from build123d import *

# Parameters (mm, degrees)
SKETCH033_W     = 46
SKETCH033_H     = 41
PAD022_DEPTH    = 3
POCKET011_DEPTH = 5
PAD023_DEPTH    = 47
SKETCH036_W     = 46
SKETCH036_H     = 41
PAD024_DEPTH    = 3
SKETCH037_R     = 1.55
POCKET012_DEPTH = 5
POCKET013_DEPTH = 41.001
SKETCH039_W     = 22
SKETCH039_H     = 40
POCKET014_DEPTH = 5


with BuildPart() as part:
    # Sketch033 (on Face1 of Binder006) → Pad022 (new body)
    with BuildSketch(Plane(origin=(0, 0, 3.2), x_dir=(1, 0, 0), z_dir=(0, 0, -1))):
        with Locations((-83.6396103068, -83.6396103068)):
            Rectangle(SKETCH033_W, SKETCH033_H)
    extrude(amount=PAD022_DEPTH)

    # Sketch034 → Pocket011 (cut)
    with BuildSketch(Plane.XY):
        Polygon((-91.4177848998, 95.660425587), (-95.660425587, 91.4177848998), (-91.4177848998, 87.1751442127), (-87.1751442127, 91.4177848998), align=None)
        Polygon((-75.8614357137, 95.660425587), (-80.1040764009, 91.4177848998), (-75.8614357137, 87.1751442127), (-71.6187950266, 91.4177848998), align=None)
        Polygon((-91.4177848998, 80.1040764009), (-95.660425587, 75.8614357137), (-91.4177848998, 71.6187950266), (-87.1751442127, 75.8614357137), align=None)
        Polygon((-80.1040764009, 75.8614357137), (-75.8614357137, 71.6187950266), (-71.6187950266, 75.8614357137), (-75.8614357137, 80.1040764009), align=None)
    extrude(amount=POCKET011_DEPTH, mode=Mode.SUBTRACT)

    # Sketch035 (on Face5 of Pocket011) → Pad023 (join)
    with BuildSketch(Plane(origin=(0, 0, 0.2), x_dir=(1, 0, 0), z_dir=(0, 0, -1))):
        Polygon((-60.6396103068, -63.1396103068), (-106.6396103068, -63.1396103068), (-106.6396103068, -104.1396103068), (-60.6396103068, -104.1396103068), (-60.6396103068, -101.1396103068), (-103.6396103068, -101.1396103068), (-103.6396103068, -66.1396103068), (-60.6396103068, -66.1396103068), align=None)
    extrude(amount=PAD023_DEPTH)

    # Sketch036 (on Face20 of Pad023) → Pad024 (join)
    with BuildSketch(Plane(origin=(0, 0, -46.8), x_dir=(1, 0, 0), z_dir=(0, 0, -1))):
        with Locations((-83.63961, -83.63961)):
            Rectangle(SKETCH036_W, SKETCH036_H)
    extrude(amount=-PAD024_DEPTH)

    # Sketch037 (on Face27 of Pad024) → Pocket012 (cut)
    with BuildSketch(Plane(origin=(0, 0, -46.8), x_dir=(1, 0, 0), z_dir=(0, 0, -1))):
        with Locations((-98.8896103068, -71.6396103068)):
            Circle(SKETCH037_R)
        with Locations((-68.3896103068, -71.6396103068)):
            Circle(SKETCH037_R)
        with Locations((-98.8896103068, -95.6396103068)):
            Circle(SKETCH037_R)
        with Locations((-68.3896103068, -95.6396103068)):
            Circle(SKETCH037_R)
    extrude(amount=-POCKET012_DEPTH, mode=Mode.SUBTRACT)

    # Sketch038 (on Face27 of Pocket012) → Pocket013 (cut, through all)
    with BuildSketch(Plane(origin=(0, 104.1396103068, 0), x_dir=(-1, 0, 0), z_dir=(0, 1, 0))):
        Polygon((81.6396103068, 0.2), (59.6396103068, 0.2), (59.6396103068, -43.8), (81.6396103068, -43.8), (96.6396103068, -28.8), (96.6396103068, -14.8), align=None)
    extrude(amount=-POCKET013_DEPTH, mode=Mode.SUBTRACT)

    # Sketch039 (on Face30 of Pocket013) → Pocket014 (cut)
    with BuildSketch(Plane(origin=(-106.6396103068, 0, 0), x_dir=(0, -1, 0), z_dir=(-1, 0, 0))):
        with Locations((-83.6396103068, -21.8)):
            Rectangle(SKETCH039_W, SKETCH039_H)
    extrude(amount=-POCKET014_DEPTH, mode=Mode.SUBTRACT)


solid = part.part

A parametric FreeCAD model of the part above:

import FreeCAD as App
import Part
import Sketcher

V = App.Vector
Q = App.Units.Quantity

doc = App.newDocument("Part")
params = doc.addObject("Spreadsheet::Sheet", "Params")
for row, (alias, value) in enumerate([
    ("sketch1_width", "46 mm"),
    ("sketch1_height", "41 mm"),
    ("pad1_length", "3 mm"),
    ("sketch2_length", "6 mm"),
    ("pocket1_length", "5 mm"),
    ("sketch3_width", "46 mm"),
    ("sketch3_width2", "43 mm"),
    ("sketch3_height", "41 mm"),
    ("sketch3_height2", "3 mm"),
    ("pad2_length", "47 mm"),
    ("sketch4_width", "46 mm"),
    ("sketch4_height", "41 mm"),
    ("pad3_length", "3 mm"),
    ("sketch5_diameter", "3.1 mm"),
    ("pocket2_length", "5 mm"),
    ("sketch6_width", "22 mm"),
    ("sketch6_height", "44 mm"),
    ("sketch6_height2", "14 mm"),
    ("sketch7_width", "22 mm"),
    ("sketch7_height", "40 mm"),
    ("pocket4_length", "5 mm"),
], start=1):
    params.set(f"A{row}", alias)
    params.set(f"B{row}", "=" + value)
    params.setAlias(f"B{row}", alias)

body = doc.addObject("PartDesign::Body", "Body")

sketch1 = doc.addObject("Sketcher::SketchObject", "Sketch")
body.addObject(sketch1)
sketch1.AttachmentSupport = (doc.XY_Plane, [""])
sketch1.MapMode = "FlatFace"
sketch1.AttachmentOffset = App.Placement(V(0, 0, 3.2), App.Rotation())
sketch1.addGeometry([
    Part.LineSegment(V(-107, 63, 0), V(-107, 104, 0)),
    Part.LineSegment(V(-107, 104, 0), V(-61, 104, 0)),
    Part.LineSegment(V(-61, 104, 0), V(-61, 63, 0)),
    Part.LineSegment(V(-61, 63, 0), V(-107, 63, 0)),
], False)
sketch1.addConstraint([
    Sketcher.Constraint("Coincident", 0, 2, 1, 1),
    Sketcher.Constraint("Coincident", 1, 2, 2, 1),
    Sketcher.Constraint("Coincident", 2, 2, 3, 1),
    Sketcher.Constraint("Coincident", 3, 2, 0, 1),
    Sketcher.Constraint("Vertical", 0),
    Sketcher.Constraint("Horizontal", 1),
    Sketcher.Constraint("Vertical", 2),
    Sketcher.Constraint("Horizontal", 3),
    Sketcher.Constraint("DistanceX", 1, 1, 1, 2, Q("46 mm")),
    Sketcher.Constraint("DistanceY", 0, 1, 0, 2, Q("41 mm")),
    Sketcher.Constraint("DistanceX", 0, 2, -1, 1, Q("106.63961 mm")),
    Sketcher.Constraint("DistanceY", -1, 1, 0, 2, Q("104.13961 mm")),
])
sketch1.setExpression("Constraints[8]", "Params.sketch1_width")
sketch1.setExpression("Constraints[9]", "Params.sketch1_height")
pad1 = doc.addObject("PartDesign::Pad", "Pad")
body.addObject(pad1)
pad1.Profile = sketch1
pad1.setExpression("Length", "Params.pad1_length")
pad1.Reversed = True

sketch2 = doc.addObject("Sketcher::SketchObject", "Sketch001")
body.addObject(sketch2)
sketch2.AttachmentSupport = (doc.XY_Plane, [""])
sketch2.MapMode = "FlatFace"
sketch2.addGeometry([
    Part.LineSegment(V(-91, 96, 0), V(-96, 91, 0)),
    Part.LineSegment(V(-96, 91, 0), V(-91, 87, 0)),
    Part.LineSegment(V(-91, 87, 0), V(-87, 91, 0)),
    Part.LineSegment(V(-87, 91, 0), V(-91, 96, 0)),
    Part.LineSegment(V(-76, 96, 0), V(-80, 91, 0)),
    Part.LineSegment(V(-80, 91, 0), V(-76, 87, 0)),
    Part.LineSegment(V(-76, 87, 0), V(-72, 91, 0)),
    Part.LineSegment(V(-72, 91, 0), V(-76, 96, 0)),
    Part.LineSegment(V(-91, 80, 0), V(-96, 76, 0)),
    Part.LineSegment(V(-96, 76, 0), V(-91, 72, 0)),
    Part.LineSegment(V(-91, 72, 0), V(-87, 76, 0)),
    Part.LineSegment(V(-87, 76, 0), V(-91, 80, 0)),
    Part.LineSegment(V(-80, 76, 0), V(-76, 72, 0)),
    Part.LineSegment(V(-76, 72, 0), V(-72, 76, 0)),
    Part.LineSegment(V(-72, 76, 0), V(-76, 80, 0)),
    Part.LineSegment(V(-76, 80, 0), V(-80, 76, 0)),
], False)
sketch2.addConstraint([
    Sketcher.Constraint("Coincident", 0, 2, 1, 1),
    Sketcher.Constraint("Coincident", 1, 2, 2, 1),
    Sketcher.Constraint("Coincident", 2, 2, 3, 1),
    Sketcher.Constraint("Coincident", 3, 2, 0, 1),
    Sketcher.Constraint("Coincident", 4, 2, 5, 1),
    Sketcher.Constraint("Coincident", 5, 2, 6, 1),
    Sketcher.Constraint("Coincident", 6, 2, 7, 1),
    Sketcher.Constraint("Coincident", 7, 2, 4, 1),
    Sketcher.Constraint("Coincident", 8, 2, 9, 1),
    Sketcher.Constraint("Coincident", 9, 2, 10, 1),
    Sketcher.Constraint("Coincident", 10, 2, 11, 1),
    Sketcher.Constraint("Coincident", 11, 2, 8, 1),
    Sketcher.Constraint("Coincident", 12, 2, 13, 1),
    Sketcher.Constraint("Coincident", 13, 2, 14, 1),
    Sketcher.Constraint("Coincident", 14, 2, 15, 1),
    Sketcher.Constraint("Coincident", 15, 2, 12, 1),
    Sketcher.Constraint("Perpendicular", 0, 1),
    Sketcher.Constraint("Perpendicular", 1, 2),
    Sketcher.Constraint("Perpendicular", 2, 3),
    Sketcher.Constraint("Perpendicular", 3, 4),
    Sketcher.Constraint("Perpendicular", 4, 5),
    Sketcher.Constraint("Perpendicular", 5, 6),
    Sketcher.Constraint("Perpendicular", 6, 7),
    Sketcher.Constraint("Perpendicular", 7, 8),
    Sketcher.Constraint("Perpendicular", 8, 9),
    Sketcher.Constraint("Perpendicular", 9, 10),
    Sketcher.Constraint("Perpendicular", 10, 11),
    Sketcher.Constraint("Parallel", 11, 12),
    Sketcher.Constraint("Perpendicular", 12, 13),
    Sketcher.Constraint("Perpendicular", 13, 14),
    Sketcher.Constraint("Perpendicular", 14, 15),
    Sketcher.Constraint("Horizontal", 0, 2, 2, 2),
    Sketcher.Constraint("Horizontal", 2, 2, 4, 2),
    Sketcher.Constraint("Horizontal", 1, 2, 5, 2),
    Sketcher.Constraint("Horizontal", 4, 2, 6, 2),
    Sketcher.Constraint("Horizontal", 8, 2, 10, 2),
    Sketcher.Constraint("Horizontal", 9, 2, 12, 2),
    Sketcher.Constraint("Horizontal", 10, 2, 13, 2),
    Sketcher.Constraint("Horizontal", 11, 2, 14, 2),
    Sketcher.Constraint("Vertical", 1, 2, 3, 2),
    Sketcher.Constraint("Vertical", 0, 2, 8, 2),
    Sketcher.Constraint("Vertical", 3, 2, 9, 2),
    Sketcher.Constraint("Vertical", 7, 2, 12, 2),
    Sketcher.Constraint("Distance", 0, Q("6 mm")),
    Sketcher.Constraint("DistanceX", 1, 2, 4, 2, Q("11.313708 mm")),
    Sketcher.Constraint("DistanceY", 8, 2, 1, 2, Q("11.313708 mm")),
    Sketcher.Constraint("DistanceX", 0, 2, -1, 1, Q("95.660426 mm")),
    Sketcher.Constraint("DistanceY", -1, 1, 0, 2, Q("91.417785 mm")),
])
sketch2.setExpression("Constraints[43]", "Params.sketch2_length")
pocket1 = doc.addObject("PartDesign::Pocket", "Pocket")
body.addObject(pocket1)
pocket1.Profile = sketch2
pocket1.setExpression("Length", "Params.pocket1_length")
pocket1.Reversed = True

sketch3 = doc.addObject("Sketcher::SketchObject", "Sketch002")
body.addObject(sketch3)
sketch3.AttachmentSupport = (doc.XY_Plane, [""])
sketch3.MapMode = "FlatFace"
sketch3.AttachmentOffset = App.Placement(V(0, 0, 0.2), App.Rotation())
sketch3.addGeometry([
    Part.LineSegment(V(-60.6, 63.1, 0), V(-106.6, 63.1, 0)),
    Part.LineSegment(V(-106.6, 63.1, 0), V(-106.6, 104.1, 0)),
    Part.LineSegment(V(-106.6, 104.1, 0), V(-60.6, 104.1, 0)),
    Part.LineSegment(V(-60.6, 104.1, 0), V(-60.6, 101.1, 0)),
    Part.LineSegment(V(-60.6, 101.1, 0), V(-103.6, 101.1, 0)),
    Part.LineSegment(V(-103.6, 101.1, 0), V(-103.6, 66.1, 0)),
    Part.LineSegment(V(-103.6, 66.1, 0), V(-60.6, 66.1, 0)),
    Part.LineSegment(V(-60.6, 66.1, 0), V(-60.6, 63.1, 0)),
], False)
sketch3.addConstraint([
    Sketcher.Constraint("Coincident", 0, 2, 1, 1),
    Sketcher.Constraint("Coincident", 1, 2, 2, 1),
    Sketcher.Constraint("Coincident", 2, 2, 3, 1),
    Sketcher.Constraint("Coincident", 3, 2, 4, 1),
    Sketcher.Constraint("Coincident", 4, 2, 5, 1),
    Sketcher.Constraint("Coincident", 5, 2, 6, 1),
    Sketcher.Constraint("Coincident", 6, 2, 7, 1),
    Sketcher.Constraint("Coincident", 7, 2, 0, 1),
    Sketcher.Constraint("Horizontal", 0),
    Sketcher.Constraint("Vertical", 1),
    Sketcher.Constraint("Horizontal", 2),
    Sketcher.Constraint("Vertical", 3),
    Sketcher.Constraint("Horizontal", 4),
    Sketcher.Constraint("Vertical", 5),
    Sketcher.Constraint("Horizontal", 6),
    Sketcher.Constraint("Vertical", 7),
    Sketcher.Constraint("Vertical", 3, 2, 6, 2),
    Sketcher.Constraint("Equal", 3, 7),
    Sketcher.Constraint("DistanceX", 0, 2, 0, 1, Q("46 mm")),
    Sketcher.Constraint("DistanceX", 4, 2, 4, 1, Q("43 mm")),
    Sketcher.Constraint("DistanceY", 1, 1, 1, 2, Q("41 mm")),
    Sketcher.Constraint("DistanceY", 3, 2, 3, 1, Q("3 mm")),
    Sketcher.Constraint("DistanceX", 0, 2, -1, 1, Q("106.63961 mm")),
    Sketcher.Constraint("DistanceY", -1, 1, 0, 2, Q("63.13961 mm")),
])
sketch3.setExpression("Constraints[18]", "Params.sketch3_width")
sketch3.setExpression("Constraints[19]", "Params.sketch3_width2")
sketch3.setExpression("Constraints[20]", "Params.sketch3_height")
sketch3.setExpression("Constraints[21]", "Params.sketch3_height2")
pad2 = doc.addObject("PartDesign::Pad", "Pad001")
body.addObject(pad2)
pad2.Profile = sketch3
pad2.setExpression("Length", "Params.pad2_length")
pad2.Reversed = True

sketch4 = doc.addObject("Sketcher::SketchObject", "Sketch003")
body.addObject(sketch4)
sketch4.AttachmentSupport = (doc.XY_Plane, [""])
sketch4.MapMode = "FlatFace"
sketch4.AttachmentOffset = App.Placement(V(0, 0, -46.8), App.Rotation())
sketch4.addGeometry([
    Part.LineSegment(V(-107, 63, 0), V(-107, 104, 0)),
    Part.LineSegment(V(-107, 104, 0), V(-61, 104, 0)),
    Part.LineSegment(V(-61, 104, 0), V(-61, 63, 0)),
    Part.LineSegment(V(-61, 63, 0), V(-107, 63, 0)),
], False)
sketch4.addConstraint([
    Sketcher.Constraint("Coincident", 0, 2, 1, 1),
    Sketcher.Constraint("Coincident", 1, 2, 2, 1),
    Sketcher.Constraint("Coincident", 2, 2, 3, 1),
    Sketcher.Constraint("Coincident", 3, 2, 0, 1),
    Sketcher.Constraint("Vertical", 0),
    Sketcher.Constraint("Horizontal", 1),
    Sketcher.Constraint("Vertical", 2),
    Sketcher.Constraint("Horizontal", 3),
    Sketcher.Constraint("DistanceX", 1, 1, 1, 2, Q("46 mm")),
    Sketcher.Constraint("DistanceY", 0, 1, 0, 2, Q("41 mm")),
    Sketcher.Constraint("DistanceX", 0, 2, -1, 1, Q("106.63961 mm")),
    Sketcher.Constraint("DistanceY", -1, 1, 0, 2, Q("104.13961 mm")),
])
sketch4.setExpression("Constraints[8]", "Params.sketch4_width")
sketch4.setExpression("Constraints[9]", "Params.sketch4_height")
pad3 = doc.addObject("PartDesign::Pad", "Pad002")
body.addObject(pad3)
pad3.Profile = sketch4
pad3.setExpression("Length", "Params.pad3_length")

sketch5 = doc.addObject("Sketcher::SketchObject", "Sketch004")
body.addObject(sketch5)
sketch5.AttachmentSupport = (doc.XY_Plane, [""])
sketch5.MapMode = "FlatFace"
sketch5.AttachmentOffset = App.Placement(V(0, 0, -46.8), App.Rotation())
sketch5.addGeometry([
    Part.Circle(V(-98.9, 71.6, 0), V(0, 0, 1), 1.6),
    Part.Circle(V(-68.4, 71.6, 0), V(0, 0, 1), 1.6),
    Part.Circle(V(-98.9, 95.6, 0), V(0, 0, 1), 1.6),
    Part.Circle(V(-68.4, 95.6, 0), V(0, 0, 1), 1.6),
], False)
sketch5.addConstraint([
    Sketcher.Constraint("Equal", 0, 1),
    Sketcher.Constraint("Equal", 1, 2),
    Sketcher.Constraint("Equal", 2, 3),
    Sketcher.Constraint("Horizontal", 0, 3, 1, 3),
    Sketcher.Constraint("Horizontal", 2, 3, 3, 3),
    Sketcher.Constraint("Vertical", 0, 3, 2, 3),
    Sketcher.Constraint("Vertical", 1, 3, 3, 3),
    Sketcher.Constraint("Diameter", 0, Q("3.1 mm")),
    Sketcher.Constraint("DistanceY", 0, 3, 2, 3, Q("24 mm")),
    Sketcher.Constraint("DistanceX", 0, 3, 1, 3, Q("30.5 mm")),
    Sketcher.Constraint("DistanceX", 0, 3, -1, 1, Q("98.88961 mm")),
    Sketcher.Constraint("DistanceY", -1, 1, 0, 3, Q("71.63961 mm")),
])
sketch5.setExpression("Constraints[7]", "Params.sketch5_diameter")
pocket2 = doc.addObject("PartDesign::Pocket", "Pocket001")
body.addObject(pocket2)
pocket2.Profile = sketch5
pocket2.setExpression("Length", "Params.pocket2_length")
pocket2.Reversed = True

sketch6 = doc.addObject("Sketcher::SketchObject", "Sketch005")
body.addObject(sketch6)
sketch6.AttachmentSupport = (doc.XZ_Plane, [""])
sketch6.MapMode = "FlatFace"
sketch6.AttachmentOffset = App.Placement(V(0, 0, -104.13961), App.Rotation())
sketch6.addGeometry([
    Part.LineSegment(V(-82, 0, 0), V(-60, 0, 0)),
    Part.LineSegment(V(-60, 0, 0), V(-60, -44, 0)),
    Part.LineSegment(V(-60, -44, 0), V(-82, -44, 0)),
    Part.LineSegment(V(-82, -44, 0), V(-97, -29, 0)),
    Part.LineSegment(V(-97, -29, 0), V(-97, -15, 0)),
    Part.LineSegment(V(-97, -15, 0), V(-82, 0, 0)),
], False)
sketch6.addConstraint([
    Sketcher.Constraint("Coincident", 0, 2, 1, 1),
    Sketcher.Constraint("Coincident", 1, 2, 2, 1),
    Sketcher.Constraint("Coincident", 2, 2, 3, 1),
    Sketcher.Constraint("Coincident", 3, 2, 4, 1),
    Sketcher.Constraint("Coincident", 4, 2, 5, 1),
    Sketcher.Constraint("Coincident", 5, 2, 0, 1),
    Sketcher.Constraint("Horizontal", 0),
    Sketcher.Constraint("Vertical", 1),
    Sketcher.Constraint("Horizontal", 2),
    Sketcher.Constraint("Vertical", 4),
    Sketcher.Constraint("Perpendicular", 3, 5),
    Sketcher.Constraint("Vertical", 2, 2, 5, 2),
    Sketcher.Constraint("Equal", 3, 5),
    Sketcher.Constraint("DistanceX", 0, 1, 0, 2, Q("22 mm")),
    Sketcher.Constraint("DistanceY", 1, 2, 1, 1, Q("44 mm")),
    Sketcher.Constraint("DistanceY", 4, 1, 4, 2, Q("14 mm")),
    Sketcher.Constraint("DistanceY", -1, 1, 0, 2, Q("0.2 mm")),
    Sketcher.Constraint("DistanceX", 0, 2, -1, 1, Q("59.63961 mm")),
])
sketch6.setExpression("Constraints[13]", "Params.sketch6_width")
sketch6.setExpression("Constraints[14]", "Params.sketch6_height")
sketch6.setExpression("Constraints[15]", "Params.sketch6_height2")
pocket3 = doc.addObject("PartDesign::Pocket", "Pocket002")
body.addObject(pocket3)
pocket3.Profile = sketch6
pocket3.Type = "ThroughAll"
pocket3.Reversed = True

sketch7 = doc.addObject("Sketcher::SketchObject", "Sketch006")
body.addObject(sketch7)
sketch7.AttachmentSupport = (doc.YZ_Plane, [""])
sketch7.MapMode = "FlatFace"
sketch7.AttachmentOffset = App.Placement(V(0, 0, -106.63961), App.Rotation())
sketch7.addGeometry([
    Part.LineSegment(V(95, -2, 0), V(95, -42, 0)),
    Part.LineSegment(V(95, -42, 0), V(73, -42, 0)),
    Part.LineSegment(V(73, -42, 0), V(73, -2, 0)),
    Part.LineSegment(V(73, -2, 0), V(95, -2, 0)),
], False)
sketch7.addConstraint([
    Sketcher.Constraint("Coincident", 0, 2, 1, 1),
    Sketcher.Constraint("Coincident", 1, 2, 2, 1),
    Sketcher.Constraint("Coincident", 2, 2, 3, 1),
    Sketcher.Constraint("Coincident", 3, 2, 0, 1),
    Sketcher.Constraint("Vertical", 0),
    Sketcher.Constraint("Horizontal", 1),
    Sketcher.Constraint("Vertical", 2),
    Sketcher.Constraint("Horizontal", 3),
    Sketcher.Constraint("DistanceX", 1, 2, 1, 1, Q("22 mm")),
    Sketcher.Constraint("DistanceY", 0, 2, 0, 1, Q("40 mm")),
    Sketcher.Constraint("DistanceY", 0, 2, -1, 1, Q("41.8 mm")),
    Sketcher.Constraint("DistanceX", -1, 1, 0, 2, Q("94.63961 mm")),
])
sketch7.setExpression("Constraints[8]", "Params.sketch7_width")
sketch7.setExpression("Constraints[9]", "Params.sketch7_height")
pocket4 = doc.addObject("PartDesign::Pocket", "Pocket003")
body.addObject(pocket4)
pocket4.Profile = sketch7
pocket4.setExpression("Length", "Params.pocket4_length")
pocket4.Reversed = True

doc.recompute()
